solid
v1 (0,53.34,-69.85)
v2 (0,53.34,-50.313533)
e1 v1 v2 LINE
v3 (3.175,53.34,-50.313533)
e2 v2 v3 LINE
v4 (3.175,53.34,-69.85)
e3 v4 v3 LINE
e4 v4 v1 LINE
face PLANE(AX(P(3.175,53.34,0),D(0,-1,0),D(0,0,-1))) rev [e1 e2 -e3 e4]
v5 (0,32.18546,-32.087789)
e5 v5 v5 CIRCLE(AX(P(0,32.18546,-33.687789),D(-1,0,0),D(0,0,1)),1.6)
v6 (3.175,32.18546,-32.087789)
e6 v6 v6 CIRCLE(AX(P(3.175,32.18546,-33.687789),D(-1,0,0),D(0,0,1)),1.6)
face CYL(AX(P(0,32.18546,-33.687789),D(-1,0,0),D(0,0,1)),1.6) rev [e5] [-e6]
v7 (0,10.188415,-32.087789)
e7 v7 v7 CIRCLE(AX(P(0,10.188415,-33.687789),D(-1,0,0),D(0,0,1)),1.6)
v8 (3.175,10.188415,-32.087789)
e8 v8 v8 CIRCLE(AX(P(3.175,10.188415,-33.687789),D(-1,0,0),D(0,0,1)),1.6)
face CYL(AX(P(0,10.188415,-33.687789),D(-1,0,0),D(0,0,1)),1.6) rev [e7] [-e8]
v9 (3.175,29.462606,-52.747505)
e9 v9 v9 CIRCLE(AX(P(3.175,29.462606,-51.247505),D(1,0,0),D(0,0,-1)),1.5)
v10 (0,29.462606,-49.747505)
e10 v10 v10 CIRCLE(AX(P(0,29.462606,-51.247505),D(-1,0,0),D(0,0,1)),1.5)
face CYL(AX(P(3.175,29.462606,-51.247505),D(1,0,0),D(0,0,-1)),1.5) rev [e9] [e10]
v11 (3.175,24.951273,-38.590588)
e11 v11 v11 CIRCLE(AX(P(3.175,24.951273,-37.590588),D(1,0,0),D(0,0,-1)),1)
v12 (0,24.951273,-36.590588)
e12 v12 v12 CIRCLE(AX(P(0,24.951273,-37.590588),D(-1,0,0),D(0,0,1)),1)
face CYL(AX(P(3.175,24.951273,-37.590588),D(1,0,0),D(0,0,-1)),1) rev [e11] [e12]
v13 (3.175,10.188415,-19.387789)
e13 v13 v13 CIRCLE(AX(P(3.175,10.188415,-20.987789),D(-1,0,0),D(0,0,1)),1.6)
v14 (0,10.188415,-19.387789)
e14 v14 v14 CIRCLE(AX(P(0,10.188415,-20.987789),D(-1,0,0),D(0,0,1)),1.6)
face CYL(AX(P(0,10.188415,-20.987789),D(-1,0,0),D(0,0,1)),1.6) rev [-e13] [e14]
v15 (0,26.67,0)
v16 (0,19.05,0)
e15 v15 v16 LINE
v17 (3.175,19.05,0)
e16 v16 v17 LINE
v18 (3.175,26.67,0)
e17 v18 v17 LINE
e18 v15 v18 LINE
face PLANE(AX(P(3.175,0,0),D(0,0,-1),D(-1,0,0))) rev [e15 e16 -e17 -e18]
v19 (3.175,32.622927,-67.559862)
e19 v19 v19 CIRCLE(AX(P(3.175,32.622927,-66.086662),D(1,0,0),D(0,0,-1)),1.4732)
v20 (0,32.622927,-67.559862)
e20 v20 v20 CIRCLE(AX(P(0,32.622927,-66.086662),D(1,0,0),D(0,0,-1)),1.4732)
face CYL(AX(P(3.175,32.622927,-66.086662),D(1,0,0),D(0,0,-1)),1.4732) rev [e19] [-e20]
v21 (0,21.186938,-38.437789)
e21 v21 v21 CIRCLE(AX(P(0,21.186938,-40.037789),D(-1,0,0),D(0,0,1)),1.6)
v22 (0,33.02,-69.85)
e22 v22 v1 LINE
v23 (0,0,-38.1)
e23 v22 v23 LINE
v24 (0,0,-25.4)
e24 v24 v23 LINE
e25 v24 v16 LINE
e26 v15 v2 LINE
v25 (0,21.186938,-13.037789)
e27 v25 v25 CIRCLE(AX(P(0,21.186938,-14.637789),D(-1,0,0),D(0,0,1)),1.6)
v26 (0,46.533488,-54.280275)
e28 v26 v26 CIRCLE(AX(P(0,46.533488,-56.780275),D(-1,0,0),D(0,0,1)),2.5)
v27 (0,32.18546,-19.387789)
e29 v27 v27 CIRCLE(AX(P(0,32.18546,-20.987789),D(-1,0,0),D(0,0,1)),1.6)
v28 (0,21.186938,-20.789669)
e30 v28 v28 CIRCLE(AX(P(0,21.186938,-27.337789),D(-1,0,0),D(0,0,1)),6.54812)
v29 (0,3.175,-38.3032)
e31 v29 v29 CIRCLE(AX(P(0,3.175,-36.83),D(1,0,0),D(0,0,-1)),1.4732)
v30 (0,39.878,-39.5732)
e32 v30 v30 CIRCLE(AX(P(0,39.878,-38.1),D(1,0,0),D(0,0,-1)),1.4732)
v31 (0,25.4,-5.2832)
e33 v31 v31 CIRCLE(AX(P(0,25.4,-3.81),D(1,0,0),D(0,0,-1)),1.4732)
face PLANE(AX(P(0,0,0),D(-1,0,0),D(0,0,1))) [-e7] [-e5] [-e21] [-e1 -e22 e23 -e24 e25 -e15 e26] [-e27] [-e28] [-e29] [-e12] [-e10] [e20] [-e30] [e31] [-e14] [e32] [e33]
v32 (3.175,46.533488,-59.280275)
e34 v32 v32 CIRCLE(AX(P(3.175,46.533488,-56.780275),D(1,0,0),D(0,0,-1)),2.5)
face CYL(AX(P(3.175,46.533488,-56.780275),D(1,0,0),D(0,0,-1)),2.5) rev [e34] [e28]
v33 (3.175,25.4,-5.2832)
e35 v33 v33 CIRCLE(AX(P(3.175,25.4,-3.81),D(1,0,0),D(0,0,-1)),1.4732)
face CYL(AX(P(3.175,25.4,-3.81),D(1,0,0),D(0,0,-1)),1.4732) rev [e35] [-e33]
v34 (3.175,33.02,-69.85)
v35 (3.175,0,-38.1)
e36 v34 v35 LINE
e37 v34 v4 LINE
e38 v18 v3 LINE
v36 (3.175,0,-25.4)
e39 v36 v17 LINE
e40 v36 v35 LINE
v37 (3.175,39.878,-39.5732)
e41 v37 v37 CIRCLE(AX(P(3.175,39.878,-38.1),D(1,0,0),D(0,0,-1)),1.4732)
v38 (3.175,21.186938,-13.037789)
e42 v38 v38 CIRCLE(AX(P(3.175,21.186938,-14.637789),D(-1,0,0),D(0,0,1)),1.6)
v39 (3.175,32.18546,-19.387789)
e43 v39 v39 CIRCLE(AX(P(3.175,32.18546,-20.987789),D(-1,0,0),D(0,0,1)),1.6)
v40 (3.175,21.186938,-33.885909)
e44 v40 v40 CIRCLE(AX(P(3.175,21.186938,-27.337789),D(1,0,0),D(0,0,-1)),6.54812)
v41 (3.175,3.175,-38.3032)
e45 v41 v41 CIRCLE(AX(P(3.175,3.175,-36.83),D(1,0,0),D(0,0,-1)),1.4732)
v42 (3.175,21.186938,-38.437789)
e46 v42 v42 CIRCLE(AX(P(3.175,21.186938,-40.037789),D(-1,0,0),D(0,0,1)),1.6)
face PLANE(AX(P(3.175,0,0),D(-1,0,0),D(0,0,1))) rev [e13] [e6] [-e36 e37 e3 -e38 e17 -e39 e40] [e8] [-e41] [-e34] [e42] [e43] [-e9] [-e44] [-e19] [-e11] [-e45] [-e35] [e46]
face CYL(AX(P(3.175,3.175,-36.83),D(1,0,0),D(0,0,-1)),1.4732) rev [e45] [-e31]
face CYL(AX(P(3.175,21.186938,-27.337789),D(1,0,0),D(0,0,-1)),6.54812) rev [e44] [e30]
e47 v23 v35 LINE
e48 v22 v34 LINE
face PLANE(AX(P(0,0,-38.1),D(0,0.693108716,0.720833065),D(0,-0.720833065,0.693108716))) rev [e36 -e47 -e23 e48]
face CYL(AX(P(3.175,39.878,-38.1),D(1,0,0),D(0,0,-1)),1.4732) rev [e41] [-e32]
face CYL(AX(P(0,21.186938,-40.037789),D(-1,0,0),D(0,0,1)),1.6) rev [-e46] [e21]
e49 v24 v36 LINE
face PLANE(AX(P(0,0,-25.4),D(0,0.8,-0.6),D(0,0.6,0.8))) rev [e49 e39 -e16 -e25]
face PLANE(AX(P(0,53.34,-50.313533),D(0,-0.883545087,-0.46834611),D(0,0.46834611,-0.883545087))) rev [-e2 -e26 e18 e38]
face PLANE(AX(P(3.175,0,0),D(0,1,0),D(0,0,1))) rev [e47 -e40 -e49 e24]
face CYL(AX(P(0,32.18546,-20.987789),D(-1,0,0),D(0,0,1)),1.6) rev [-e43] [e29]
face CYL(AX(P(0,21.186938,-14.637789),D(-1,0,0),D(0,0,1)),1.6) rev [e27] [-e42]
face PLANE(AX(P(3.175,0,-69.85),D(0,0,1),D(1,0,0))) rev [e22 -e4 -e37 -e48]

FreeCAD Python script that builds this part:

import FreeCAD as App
import Part
import Sketcher
Q = App.Units.Quantity

doc = App.newDocument("Part")
body = doc.addObject("PartDesign::Body", "Body")

sketch1 = body.newObject("Sketcher::SketchObject", "Sketch")
sketch1.AttachmentSupport = (doc.getObject("YZ_Plane"), [""])
sketch1.MapMode = "FlatFace"
sketch1.addGeometry(Part.LineSegment(App.Vector(53.34, 0, 0), App.Vector(0, 0, 0)), False)
sketch1.addGeometry(Part.LineSegment(App.Vector(0, 0, 0), App.Vector(0, -69.85, 0)), False)
sketch1.addGeometry(Part.LineSegment(App.Vector(0, -69.85, 0), App.Vector(53.34, -69.85, 0)), False)
sketch1.addGeometry(Part.LineSegment(App.Vector(53.34, -69.85, 0), App.Vector(53.34, 0, 0)), False)
sketch1.addConstraint(Sketcher.Constraint("Coincident", 0, 2, 1, 1))
sketch1.addConstraint(Sketcher.Constraint("Coincident", 1, 2, 2, 1))
sketch1.addConstraint(Sketcher.Constraint("Coincident", 2, 2, 3, 1))
sketch1.addConstraint(Sketcher.Constraint("Coincident", 3, 2, 0, 1))
sketch1.addConstraint(Sketcher.Constraint("Horizontal", 0))
sketch1.addConstraint(Sketcher.Constraint("Vertical", 1))
sketch1.addConstraint(Sketcher.Constraint("Horizontal", 2))
sketch1.addConstraint(Sketcher.Constraint("Vertical", 3))
sketch1.addConstraint(Sketcher.Constraint("Coincident", 0, 2, -1, 1))
sketch1.addConstraint(Sketcher.Constraint("DistanceX", 0, 2, 0, 1, Q("2.1 in")))
sketch1.addConstraint(Sketcher.Constraint("DistanceY", 1, 2, 1, 1, Q("2.75 in")))
pad1 = body.newObject("PartDesign::Pad", "Pad")
pad1.Profile = sketch1
pad1.Length = Q("0.125 in")

sketch2 = body.newObject("Sketcher::SketchObject", "Sketch001")
sketch2.AttachmentSupport = (doc.getObject("YZ_Plane"), [""])
sketch2.MapMode = "FlatFace"
sketch2.AttachmentOffset = App.Placement(App.Vector(0, 0, 0.125 * 25.4), App.Rotation())
sketch2.addGeometry(Part.Circle(App.Vector(21.186938, -27.337789, 0), App.Vector(0, 0, 1), 6.54812), False)
sketch2.addConstraint(Sketcher.Constraint("Diameter", 0, Q("0.5156 in")))
sketch2.addConstraint(Sketcher.Constraint("DistanceY", 0, 3, -1, 1, 27.337789))
sketch2.addConstraint(Sketcher.Constraint("DistanceX", -1, 1, 0, 3, 21.186938))
doc.recompute()
hole = body.newObject("PartDesign::Hole", "Hole")
hole.Profile = sketch2
hole.ThreadType = "None"
hole.Diameter = Q("0.5156 in")
hole.DepthType = "Dimension"
hole.Depth = Q("1 in")
hole.DrillPoint = "Angled"
hole.DrillPointAngle = 118

sketch3 = body.newObject("Sketcher::SketchObject", "Sketch002")
sketch3.AttachmentSupport = (doc.getObject("YZ_Plane"), [""])
sketch3.MapMode = "FlatFace"
sketch3.addGeometry(Part.Circle(App.Vector(21.186938, -40.037789, 0), App.Vector(0, 0, 1), 1.6), False)
sketch3.addGeometry(Part.Circle(App.Vector(32.18546, -33.687789, 0), App.Vector(0, 0, 1), 1.6), False)
sketch3.addGeometry(Part.Circle(App.Vector(32.18546, -20.987789, 0), App.Vector(0, 0, 1), 1.6), False)
sketch3.addGeometry(Part.Circle(App.Vector(21.186938, -14.637789, 0), App.Vector(0, 0, 1), 1.6), False)
sketch3.addGeometry(Part.Circle(App.Vector(10.188415, -20.987789, 0), App.Vector(0, 0, 1), 1.6), False)
sketch3.addGeometry(Part.Circle(App.Vector(10.188415, -33.687789, 0), App.Vector(0, 0, 1), 1.6), False)
sketch3.addGeometry(Part.Circle(App.Vector(21.186938, -27.337789, 0), App.Vector(0, 0, 1), 1.6), False)
sketch3.addConstraint(Sketcher.Constraint("Equal", 0, 1))
sketch3.addConstraint(Sketcher.Constraint("Equal", 1, 2))
sketch3.addConstraint(Sketcher.Constraint("Equal", 2, 3))
sketch3.addConstraint(Sketcher.Constraint("Equal", 3, 4))
sketch3.addConstraint(Sketcher.Constraint("Equal", 4, 5))
sketch3.addConstraint(Sketcher.Constraint("Equal", 5, 6))
sketch3.addConstraint(Sketcher.Constraint("Horizontal", 2, 3, 4, 3))
sketch3.addConstraint(Sketcher.Constraint("Horizontal", 1, 3, 5, 3))
sketch3.addConstraint(Sketcher.Constraint("Vertical", 1, 3, 2, 3))
sketch3.addConstraint(Sketcher.Constraint("Vertical", 0, 3, 3, 3))
sketch3.addConstraint(Sketcher.Constraint("Vertical", 4, 3, 5, 3))
sketch3.addConstraint(Sketcher.Constraint("Vertical", 3, 3, 6, 3))
sketch3.addConstraint(Sketcher.Constraint("DistanceY", 0, 3, 3, 3, Q("1 in")))
sketch3.addConstraint(Sketcher.Constraint("DistanceY", 1, 3, 2, 3, Q("0.5 in")))
sketch3.addConstraint(Sketcher.Constraint("DistanceY", 0, 3, 6, 3, Q("0.5 in")))
sketch3.addConstraint(Sketcher.Constraint("Diameter", 0, 3.2))
sketch3.addConstraint(Sketcher.Constraint("DistanceY", 0, 3, 1, 3, Q("0.25 in")))
sketch3.addConstraint(Sketcher.Constraint("DistanceY", 0, 3, -1, 1, 40.037789))
sketch3.addConstraint(Sketcher.Constraint("DistanceX", -1, 1, 1, 3, 32.18546))
sketch3.addConstraint(Sketcher.Constraint("DistanceX", -1, 1, 0, 3, 21.186938))
sketch3.addConstraint(Sketcher.Constraint("DistanceX", -1, 1, 4, 3, 10.188415))
doc.recompute()
hole2 = body.newObject("PartDesign::Hole", "Hole001")
hole2.Profile = sketch3
hole2.ThreadType = "None"
hole2.Diameter = 3.2
hole2.DepthType = "Dimension"
hole2.Depth = Q("1 in")
hole2.DrillPoint = "Angled"
hole2.DrillPointAngle = 118
hole2.Reversed = True

sketch4 = body.newObject("Sketcher::SketchObject", "Sketch003")
sketch4.AttachmentSupport = (doc.getObject("YZ_Plane"), [""])
sketch4.MapMode = "FlatFace"
sketch4.AttachmentOffset = App.Placement(App.Vector(0, 0, 0.125 * 25.4), App.Rotation())
sketch4.addGeometry(Part.Circle(App.Vector(24.951273, -37.590588, 0), App.Vector(0, 0, 1), 1), False)
sketch4.addConstraint(Sketcher.Constraint("Diameter", 0, 2.0))
sketch4.addConstraint(Sketcher.Constraint("DistanceX", -1, 1, 0, 3, 24.951273))
sketch4.addConstraint(Sketcher.Constraint("DistanceY", 0, 3, -1, 1, 37.590588))
doc.recompute()
hole3 = body.newObject("PartDesign::Hole", "Hole002")
hole3.Profile = sketch4
hole3.ThreadType = "None"
hole3.Diameter = 2
hole3.DepthType = "Dimension"
hole3.Depth = Q("1 in")
hole3.DrillPoint = "Angled"
hole3.DrillPointAngle = 118

sketch5 = body.newObject("Sketcher::SketchObject", "Sketch004")
sketch5.AttachmentSupport = (doc.getObject("YZ_Plane"), [""])
sketch5.MapMode = "FlatFace"
sketch5.AttachmentOffset = App.Placement(App.Vector(0, 0, 0.125 * 25.4), App.Rotation())
sketch5.addGeometry(Part.Circle(App.Vector(29.462606, -51.247505, 0), App.Vector(0, 0, 1), 1.5), False)
sketch5.addConstraint(Sketcher.Constraint("Diameter", 0, 3.0))
sketch5.addConstraint(Sketcher.Constraint("DistanceX", -1, 1, 0, 3, 29.462606))
sketch5.addConstraint(Sketcher.Constraint("DistanceY", 0, 3, -1, 1, 51.247505))
doc.recompute()
hole4 = body.newObject("PartDesign::Hole", "Hole003")
hole4.Profile = sketch5
hole4.ThreadType = "None"
hole4.Diameter = 3
hole4.DepthType = "Dimension"
hole4.Depth = Q("1 in")
hole4.DrillPoint = "Angled"
hole4.DrillPointAngle = 118

sketch6 = body.newObject("Sketcher::SketchObject", "Sketch005")
sketch6.AttachmentSupport = (doc.getObject("YZ_Plane"), [""])
sketch6.MapMode = "FlatFace"
sketch6.AttachmentOffset = App.Placement(App.Vector(0, 0, 0.125 * 25.4), App.Rotation())
sketch6.addGeometry(Part.Circle(App.Vector(46.533488, -56.780275, 0), App.Vector(0, 0, 1), 2.5), False)
sketch6.addConstraint(Sketcher.Constraint("Diameter", 0, 5.0))
sketch6.addConstraint(Sketcher.Constraint("DistanceX", -1, 1, 0, 3, 46.533488))
sketch6.addConstraint(Sketcher.Constraint("DistanceY", 0, 3, -1, 1, 56.780275))
doc.recompute()
hole5 = body.newObject("PartDesign::Hole", "Hole004")
hole5.Profile = sketch6
hole5.ThreadType = "None"
hole5.Diameter = 5
hole5.DepthType = "Dimension"
hole5.Depth = Q("1 in")
hole5.DrillPoint = "Angled"
hole5.DrillPointAngle = 118

sketch7 = body.newObject("Sketcher::SketchObject", "Sketch006")
sketch7.AttachmentSupport = (doc.getObject("YZ_Plane"), [""])
sketch7.MapMode = "FlatFace"
sketch7.AttachmentOffset = App.Placement(App.Vector(0, 0, 0.125 * 25.4), App.Rotation())
sketch7.addGeometry(Part.LineSegment(App.Vector(53.34, -50.313533, 0), App.Vector(53.34, 0, 0)), False)
sketch7.addGeometry(Part.LineSegment(App.Vector(53.34, 0, 0), App.Vector(26.67, 0, 0)), False)
sketch7.addGeometry(Part.LineSegment(App.Vector(26.67, 0, 0), App.Vector(53.34, -50.313533, 0)), False)
sketch7.addGeometry(Part.LineSegment(App.Vector(0, -38.1, 0), App.Vector(0, -69.85, 0)), False)
sketch7.addGeometry(Part.LineSegment(App.Vector(0, -69.85, 0), App.Vector(33.02, -69.85, 0)), False)
sketch7.addGeometry(Part.LineSegment(App.Vector(33.02, -69.85, 0), App.Vector(0, -38.1, 0)), False)
sketch7.addGeometry(Part.LineSegment(App.Vector(0, -25.4, 0), App.Vector(19.05, 0, 0)), False)
sketch7.addGeometry(Part.LineSegment(App.Vector(19.05, 0, 0), App.Vector(0, 0, 0)), False)
sketch7.addGeometry(Part.LineSegment(App.Vector(0, 0, 0), App.Vector(0, -25.4, 0)), False)
sketch7.addConstraint(Sketcher.Constraint("Coincident", 0, 2, 1, 1))
sketch7.addConstraint(Sketcher.Constraint("Coincident", 1, 2, 2, 1))
sketch7.addConstraint(Sketcher.Constraint("Coincident", 2, 2, 0, 1))
sketch7.addConstraint(Sketcher.Constraint("Coincident", 3, 2, 4, 1))
sketch7.addConstraint(Sketcher.Constraint("Coincident", 4, 2, 5, 1))
sketch7.addConstraint(Sketcher.Constraint("Coincident", 5, 2, 3, 1))
sketch7.addConstraint(Sketcher.Constraint("Coincident", 6, 2, 7, 1))
sketch7.addConstraint(Sketcher.Constraint("Coincident", 7, 2, 8, 1))
sketch7.addConstraint(Sketcher.Constraint("Coincident", 8, 2, 6, 1))
sketch7.addConstraint(Sketcher.Constraint("Vertical", 0))
sketch7.addConstraint(Sketcher.Constraint("Horizontal", 1))
sketch7.addConstraint(Sketcher.Constraint("Vertical", 3))
sketch7.addConstraint(Sketcher.Constraint("Horizontal", 4))
sketch7.addConstraint(Sketcher.Constraint("Horizontal", 7))
sketch7.addConstraint(Sketcher.Constraint("Vertical", 8))
sketch7.addConstraint(Sketcher.Constraint("Coincident", 7, 2, -1, 1))
sketch7.addConstraint(Sketcher.Constraint("PointOnObject", 0, 2, -1))
sketch7.addConstraint(Sketcher.Constraint("PointOnObject", 3, 2, -2))
sketch7.addConstraint(Sketcher.Constraint("DistanceY", 8, 2, 8, 1, Q("1 in")))
sketch7.addConstraint(Sketcher.Constraint("DistanceX", 4, 1, 4, 2, Q("1.3 in")))
sketch7.addConstraint(Sketcher.Constraint("DistanceX", 1, 2, 1, 1, Q("1.05 in")))
sketch7.addConstraint(Sketcher.Constraint("DistanceX", 7, 2, 7, 1, Q("0.75 in")))
sketch7.addConstraint(Sketcher.Constraint("DistanceY", 3, 2, 3, 1, Q("1.25 in")))
sketch7.addConstraint(Sketcher.Constraint("DistanceX", -1, 1, 0, 2, Q("2.1 in")))
sketch7.addConstraint(Sketcher.Constraint("DistanceY", 5, 2, -1, 1, Q("1.5 in")))
sketch7.addConstraint(Sketcher.Constraint("DistanceY", 0, 1, 0, 2, 50.313533))
pocket1 = body.newObject("PartDesign::Pocket", "Pocket")
pocket1.Profile = sketch7
pocket1.Type = "ThroughAll"

sketch8 = body.newObject("Sketcher::SketchObject", "Sketch007")
sketch8.AttachmentSupport = (doc.getObject("YZ_Plane"), [""])
sketch8.MapMode = "FlatFace"
sketch8.AttachmentOffset = App.Placement(App.Vector(0, 0, 0.125 * 25.4), App.Rotation())
sketch8.addGeometry(Part.Circle(App.Vector(25.4, -3.81, 0), App.Vector(0, 0, 1), 1.4732), False)
sketch8.addGeometry(Part.Circle(App.Vector(3.175, -36.83, 0), App.Vector(0, 0, 1), 1.4732), False)
sketch8.addGeometry(Part.Circle(App.Vector(32.622927, -66.086662, 0), App.Vector(0, 0, 1), 1.4732), False)
sketch8.addGeometry(Part.Circle(App.Vector(39.878, -38.1, 0), App.Vector(0, 0, 1), 1.4732), False)
sketch8.addConstraint(Sketcher.Constraint("Equal", 0, 1))
sketch8.addConstraint(Sketcher.Constraint("Equal", 1, 2))
sketch8.addConstraint(Sketcher.Constraint("Equal", 2, 3))
sketch8.addConstraint(Sketcher.Constraint("Diameter", 0, Q("0.116 in")))
sketch8.addConstraint(Sketcher.Constraint("DistanceX", -1, 1, 0, 3, Q("1 in")))
sketch8.addConstraint(Sketcher.Constraint("DistanceY", 3, 3, -1, 1, Q("1.5 in")))
sketch8.addConstraint(Sketcher.Constraint("DistanceY", 1, 3, 0, 3, Q("1.3 in")))
sketch8.addConstraint(Sketcher.Constraint("DistanceY", 0, 3, -1, 1, Q("0.15 in")))
sketch8.addConstraint(Sketcher.Constraint("DistanceX", -1, 1, 3, 3, Q("1.57 in")))
sketch8.addConstraint(Sketcher.Constraint("DistanceX", -1, 1, 1, 3, Q("0.125 in")))
sketch8.addConstraint(Sketcher.Constraint("DistanceX", -1, 1, 2, 3, 32.622927))
sketch8.addConstraint(Sketcher.Constraint("DistanceY", 2, 3, -1, 1, 66.086662))
doc.recompute()
hole6 = body.newObject("PartDesign::Hole", "Hole005")
hole6.Profile = sketch8
hole6.ThreadType = "None"
hole6.Diameter = Q("0.116 in")
hole6.DepthType = "Dimension"
hole6.Depth = Q("0.125 in")
hole6.DrillPoint = "Angled"
hole6.DrillPointAngle = 118

doc.recompute()
